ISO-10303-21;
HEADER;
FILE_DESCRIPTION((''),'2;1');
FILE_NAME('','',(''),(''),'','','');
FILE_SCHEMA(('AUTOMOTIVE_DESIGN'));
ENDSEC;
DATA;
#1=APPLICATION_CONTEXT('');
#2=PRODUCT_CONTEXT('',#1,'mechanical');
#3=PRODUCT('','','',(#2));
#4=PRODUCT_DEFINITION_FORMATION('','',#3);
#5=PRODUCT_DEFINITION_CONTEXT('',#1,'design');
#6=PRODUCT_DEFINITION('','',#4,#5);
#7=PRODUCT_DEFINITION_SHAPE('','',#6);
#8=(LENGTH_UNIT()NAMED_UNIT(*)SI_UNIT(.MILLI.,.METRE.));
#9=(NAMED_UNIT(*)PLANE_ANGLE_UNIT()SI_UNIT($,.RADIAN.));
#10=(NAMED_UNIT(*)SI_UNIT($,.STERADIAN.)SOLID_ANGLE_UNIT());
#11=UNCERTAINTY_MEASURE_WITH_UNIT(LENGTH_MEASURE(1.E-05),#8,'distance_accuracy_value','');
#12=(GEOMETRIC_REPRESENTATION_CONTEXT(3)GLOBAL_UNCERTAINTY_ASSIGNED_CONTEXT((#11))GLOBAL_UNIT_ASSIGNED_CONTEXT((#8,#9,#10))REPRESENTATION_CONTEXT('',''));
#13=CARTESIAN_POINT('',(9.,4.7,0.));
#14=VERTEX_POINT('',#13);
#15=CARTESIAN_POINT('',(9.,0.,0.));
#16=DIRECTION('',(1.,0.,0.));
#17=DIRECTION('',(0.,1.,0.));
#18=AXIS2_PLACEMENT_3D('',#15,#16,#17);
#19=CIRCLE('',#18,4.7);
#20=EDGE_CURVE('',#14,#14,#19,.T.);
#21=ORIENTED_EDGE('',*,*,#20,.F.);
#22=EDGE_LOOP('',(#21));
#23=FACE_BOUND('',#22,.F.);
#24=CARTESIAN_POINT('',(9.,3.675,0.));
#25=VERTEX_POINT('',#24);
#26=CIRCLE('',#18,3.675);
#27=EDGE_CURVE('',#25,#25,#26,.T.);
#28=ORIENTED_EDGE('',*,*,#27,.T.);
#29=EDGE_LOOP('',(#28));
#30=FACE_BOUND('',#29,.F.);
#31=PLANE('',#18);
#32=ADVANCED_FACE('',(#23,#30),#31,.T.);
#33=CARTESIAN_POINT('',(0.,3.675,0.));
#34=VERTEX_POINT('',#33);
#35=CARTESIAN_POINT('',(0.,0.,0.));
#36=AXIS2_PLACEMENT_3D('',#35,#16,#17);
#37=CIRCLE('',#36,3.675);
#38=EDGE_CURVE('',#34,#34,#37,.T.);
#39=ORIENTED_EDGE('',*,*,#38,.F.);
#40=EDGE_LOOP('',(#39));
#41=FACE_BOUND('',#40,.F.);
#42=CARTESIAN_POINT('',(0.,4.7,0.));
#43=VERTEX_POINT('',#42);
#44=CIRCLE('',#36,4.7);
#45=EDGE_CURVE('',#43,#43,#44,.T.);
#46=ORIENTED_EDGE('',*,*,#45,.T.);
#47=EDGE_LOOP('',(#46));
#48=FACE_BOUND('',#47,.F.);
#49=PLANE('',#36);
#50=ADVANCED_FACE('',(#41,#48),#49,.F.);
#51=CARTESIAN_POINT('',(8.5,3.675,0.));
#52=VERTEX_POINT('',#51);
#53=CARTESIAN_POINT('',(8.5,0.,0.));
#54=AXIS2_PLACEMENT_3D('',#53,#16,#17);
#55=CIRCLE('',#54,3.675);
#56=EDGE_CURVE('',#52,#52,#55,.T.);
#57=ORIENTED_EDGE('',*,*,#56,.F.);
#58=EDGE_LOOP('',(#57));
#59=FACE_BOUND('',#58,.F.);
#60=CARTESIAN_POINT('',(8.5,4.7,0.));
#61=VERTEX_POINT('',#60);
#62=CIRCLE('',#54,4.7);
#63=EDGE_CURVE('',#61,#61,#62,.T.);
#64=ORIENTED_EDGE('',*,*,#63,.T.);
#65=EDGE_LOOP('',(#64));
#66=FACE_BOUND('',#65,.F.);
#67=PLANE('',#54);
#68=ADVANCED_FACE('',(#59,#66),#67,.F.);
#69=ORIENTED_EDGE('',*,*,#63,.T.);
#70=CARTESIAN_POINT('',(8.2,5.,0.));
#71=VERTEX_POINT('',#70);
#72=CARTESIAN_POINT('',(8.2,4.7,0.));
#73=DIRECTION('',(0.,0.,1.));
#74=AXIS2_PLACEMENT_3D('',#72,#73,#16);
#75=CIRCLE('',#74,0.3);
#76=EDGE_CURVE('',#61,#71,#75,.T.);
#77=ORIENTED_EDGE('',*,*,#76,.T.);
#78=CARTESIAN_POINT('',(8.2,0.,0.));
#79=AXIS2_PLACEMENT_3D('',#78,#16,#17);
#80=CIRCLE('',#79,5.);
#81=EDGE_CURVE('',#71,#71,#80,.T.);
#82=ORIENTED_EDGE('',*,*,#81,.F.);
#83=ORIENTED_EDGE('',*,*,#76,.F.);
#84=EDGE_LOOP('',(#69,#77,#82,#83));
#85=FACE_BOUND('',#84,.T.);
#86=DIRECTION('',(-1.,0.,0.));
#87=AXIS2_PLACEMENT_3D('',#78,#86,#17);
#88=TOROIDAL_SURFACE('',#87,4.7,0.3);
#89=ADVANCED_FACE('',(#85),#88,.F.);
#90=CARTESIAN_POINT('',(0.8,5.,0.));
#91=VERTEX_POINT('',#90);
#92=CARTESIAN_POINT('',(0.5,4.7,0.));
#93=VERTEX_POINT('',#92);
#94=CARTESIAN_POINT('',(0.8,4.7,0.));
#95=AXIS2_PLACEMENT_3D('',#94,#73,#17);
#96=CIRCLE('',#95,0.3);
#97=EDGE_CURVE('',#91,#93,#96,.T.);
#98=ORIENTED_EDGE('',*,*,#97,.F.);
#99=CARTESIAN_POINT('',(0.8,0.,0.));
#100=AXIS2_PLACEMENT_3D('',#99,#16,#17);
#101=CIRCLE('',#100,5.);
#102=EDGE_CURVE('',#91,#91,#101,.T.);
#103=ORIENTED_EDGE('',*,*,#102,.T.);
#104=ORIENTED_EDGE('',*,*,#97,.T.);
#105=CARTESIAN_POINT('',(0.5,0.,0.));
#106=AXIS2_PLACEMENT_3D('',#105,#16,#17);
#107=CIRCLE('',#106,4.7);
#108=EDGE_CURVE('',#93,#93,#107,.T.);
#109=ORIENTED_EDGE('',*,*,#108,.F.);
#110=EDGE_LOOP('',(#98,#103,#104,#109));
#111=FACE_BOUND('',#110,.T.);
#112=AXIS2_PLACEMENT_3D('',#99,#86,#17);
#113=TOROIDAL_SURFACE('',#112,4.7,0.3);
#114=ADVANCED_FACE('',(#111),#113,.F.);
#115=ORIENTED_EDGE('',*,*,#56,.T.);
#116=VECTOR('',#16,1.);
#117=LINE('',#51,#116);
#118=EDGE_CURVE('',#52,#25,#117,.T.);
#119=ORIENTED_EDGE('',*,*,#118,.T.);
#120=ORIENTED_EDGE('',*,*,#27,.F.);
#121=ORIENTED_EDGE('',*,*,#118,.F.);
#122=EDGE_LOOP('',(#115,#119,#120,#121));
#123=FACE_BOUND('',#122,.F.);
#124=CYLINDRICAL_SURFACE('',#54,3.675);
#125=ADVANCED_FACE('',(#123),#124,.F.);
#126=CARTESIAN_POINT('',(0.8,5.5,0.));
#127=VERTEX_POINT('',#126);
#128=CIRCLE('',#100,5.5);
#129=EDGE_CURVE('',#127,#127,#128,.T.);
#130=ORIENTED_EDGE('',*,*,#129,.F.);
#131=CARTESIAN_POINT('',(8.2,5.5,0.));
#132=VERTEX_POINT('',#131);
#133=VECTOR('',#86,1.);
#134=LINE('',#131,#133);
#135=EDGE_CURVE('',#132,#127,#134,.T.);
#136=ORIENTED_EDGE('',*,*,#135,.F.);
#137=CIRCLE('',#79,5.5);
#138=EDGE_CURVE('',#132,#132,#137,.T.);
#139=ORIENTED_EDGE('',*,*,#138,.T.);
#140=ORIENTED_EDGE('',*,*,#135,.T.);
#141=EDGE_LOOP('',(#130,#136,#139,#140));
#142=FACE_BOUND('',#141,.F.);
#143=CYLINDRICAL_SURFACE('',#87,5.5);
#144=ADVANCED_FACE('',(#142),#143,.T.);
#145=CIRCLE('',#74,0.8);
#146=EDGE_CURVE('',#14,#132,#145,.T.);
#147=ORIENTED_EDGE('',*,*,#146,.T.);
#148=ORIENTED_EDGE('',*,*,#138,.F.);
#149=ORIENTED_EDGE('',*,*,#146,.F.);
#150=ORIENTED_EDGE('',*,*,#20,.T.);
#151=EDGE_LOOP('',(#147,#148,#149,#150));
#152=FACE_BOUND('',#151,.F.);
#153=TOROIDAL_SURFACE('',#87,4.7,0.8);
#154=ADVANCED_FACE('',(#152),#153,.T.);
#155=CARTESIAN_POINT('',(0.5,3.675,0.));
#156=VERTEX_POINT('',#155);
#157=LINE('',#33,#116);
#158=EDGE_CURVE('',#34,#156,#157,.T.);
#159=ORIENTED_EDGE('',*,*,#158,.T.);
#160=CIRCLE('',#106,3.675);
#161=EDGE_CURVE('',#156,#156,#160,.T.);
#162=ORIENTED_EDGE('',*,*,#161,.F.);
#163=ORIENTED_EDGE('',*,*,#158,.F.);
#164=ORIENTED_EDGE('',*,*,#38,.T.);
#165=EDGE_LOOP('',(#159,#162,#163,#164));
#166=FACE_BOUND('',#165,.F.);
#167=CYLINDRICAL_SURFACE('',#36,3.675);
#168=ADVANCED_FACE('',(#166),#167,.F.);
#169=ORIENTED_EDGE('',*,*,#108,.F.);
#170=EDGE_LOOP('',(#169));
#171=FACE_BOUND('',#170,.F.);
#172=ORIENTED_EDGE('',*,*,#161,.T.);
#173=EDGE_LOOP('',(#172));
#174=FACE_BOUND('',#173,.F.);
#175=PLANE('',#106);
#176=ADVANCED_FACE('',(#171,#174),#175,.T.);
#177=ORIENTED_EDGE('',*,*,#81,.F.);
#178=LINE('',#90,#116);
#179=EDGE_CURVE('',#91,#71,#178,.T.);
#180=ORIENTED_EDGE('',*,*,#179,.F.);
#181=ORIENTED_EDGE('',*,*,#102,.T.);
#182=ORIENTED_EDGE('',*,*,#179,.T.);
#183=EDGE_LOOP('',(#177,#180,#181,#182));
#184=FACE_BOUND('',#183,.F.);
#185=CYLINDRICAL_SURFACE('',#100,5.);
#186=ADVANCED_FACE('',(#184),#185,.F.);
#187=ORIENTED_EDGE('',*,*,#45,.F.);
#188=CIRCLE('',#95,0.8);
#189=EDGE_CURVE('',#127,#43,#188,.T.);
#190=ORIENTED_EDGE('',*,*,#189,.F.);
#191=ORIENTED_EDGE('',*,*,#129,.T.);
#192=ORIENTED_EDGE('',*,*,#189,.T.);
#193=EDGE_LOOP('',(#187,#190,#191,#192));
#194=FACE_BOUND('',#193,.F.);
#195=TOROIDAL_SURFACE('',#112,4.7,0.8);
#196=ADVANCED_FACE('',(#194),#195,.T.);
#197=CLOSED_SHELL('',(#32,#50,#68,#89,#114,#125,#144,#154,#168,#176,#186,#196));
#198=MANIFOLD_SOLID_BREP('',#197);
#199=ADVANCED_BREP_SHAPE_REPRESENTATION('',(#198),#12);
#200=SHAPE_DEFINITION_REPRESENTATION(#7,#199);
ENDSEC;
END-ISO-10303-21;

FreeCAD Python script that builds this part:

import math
import FreeCAD as App
import Part
import Sketcher
from FreeCAD import Vector
Q = App.Units.Quantity

doc = App.newDocument("Part")
params = doc.addObject("Spreadsheet::Sheet", "Params")
for row, (alias, value) in enumerate([
    ("sketch1_radius", "0.3 mm"),
    ("sketch1_radius2", "0.8 mm"),
    ("sketch1_width", "7.4 mm"),
    ("revolution_angle", "360 deg"),
], start=1):
    params.set(f"A{row}", alias)
    params.set(f"B{row}", "=" + value)
    params.setAlias(f"B{row}", alias)

body = doc.addObject("PartDesign::Body", "Body")

# Sketch on XY plane
sketch1 = body.newObject("Sketcher::SketchObject", "Sketch")
sketch1.AttachmentSupport = (doc.getObject("XY_Plane"), [""])
sketch1.MapMode = "FlatFace"
sketch1.addGeometry([
    Part.LineSegment(Vector(0, 4.7, 0), Vector(0, 3.67, 0)),  # 0
    Part.LineSegment(Vector(0, 3.67, 0), Vector(0.5, 3.67, 0)),  # 1
    Part.LineSegment(Vector(0.5, 3.67, 0), Vector(0.5, 4.7, 0)),  # 2
    Part.ArcOfCircle(Part.Circle(Vector(0.8, 4.7, 0), Vector(0, 0, 1), 0.3), math.radians(90), math.radians(180)),  # 3
    Part.LineSegment(Vector(0.8, 5, 0), Vector(8.2, 5, 0)),  # 4
    Part.ArcOfCircle(Part.Circle(Vector(8.2, 4.7, 0), Vector(0, 0, 1), 0.3), math.radians(0), math.radians(90)),  # 5
    Part.LineSegment(Vector(8.5, 4.7, 0), Vector(8.5, 3.67, 0)),  # 6
    Part.LineSegment(Vector(8.5, 3.67, 0), Vector(9, 3.67, 0)),  # 7
    Part.LineSegment(Vector(9, 3.67, 0), Vector(9, 4.7, 0)),  # 8
    Part.ArcOfCircle(Part.Circle(Vector(8.2, 4.7, 0), Vector(0, 0, 1), 0.8), math.radians(0), math.radians(90)),  # 9
    Part.LineSegment(Vector(8.2, 5.5, 0), Vector(0.8, 5.5, 0)),  # 10
    Part.ArcOfCircle(Part.Circle(Vector(0.8, 4.7, 0), Vector(0, 0, 1), 0.8), math.radians(90), math.radians(180)),  # 11
], False)
sketch1.addConstraint([
    Sketcher.Constraint("Coincident", 0, 2, 1, 1),
    Sketcher.Constraint("Coincident", 1, 2, 2, 1),
    Sketcher.Constraint("Tangent", 2, 2, 3, 2),
    Sketcher.Constraint("Tangent", 3, 1, 4, 1),
    Sketcher.Constraint("Tangent", 4, 2, 5, 2),
    Sketcher.Constraint("Tangent", 5, 1, 6, 1),
    Sketcher.Constraint("Coincident", 6, 2, 7, 1),
    Sketcher.Constraint("Coincident", 7, 2, 8, 1),
    Sketcher.Constraint("Tangent", 8, 2, 9, 1),
    Sketcher.Constraint("Tangent", 9, 2, 10, 1),
    Sketcher.Constraint("Tangent", 10, 2, 11, 1),
    Sketcher.Constraint("Tangent", 11, 2, 0, 1),
    Sketcher.Constraint("Vertical", 0),
    Sketcher.Constraint("Horizontal", 1),
    Sketcher.Constraint("Vertical", 2),
    Sketcher.Constraint("Horizontal", 4),
    Sketcher.Constraint("Vertical", 6),
    Sketcher.Constraint("Horizontal", 7),
    Sketcher.Constraint("Vertical", 8),
    Sketcher.Constraint("Horizontal", 10),
    Sketcher.Constraint("Coincident", 9, 3, 5, 3),
    Sketcher.Constraint("Coincident", 11, 3, 3, 3),
    Sketcher.Constraint("Equal", 3, 5),
    Sketcher.Constraint("PointOnObject", 0, 2, -2),
    Sketcher.Constraint("Horizontal", 1, 2, 6, 2),
    Sketcher.Constraint("Radius", 3, Q("0.3 mm")),
    Sketcher.Constraint("Radius", 9, Q("0.8 mm")),
    Sketcher.Constraint("DistanceX", 4, 1, 4, 2, Q("7.4 mm")),
    Sketcher.Constraint("DistanceY", -1, 1, 3, 1, Q("5 mm")),
    Sketcher.Constraint("DistanceY", 0, 2, 0, 1, Q("1.025 mm")),
])
sketch1.setExpression("Constraints[25]", "Params.sketch1_radius")
sketch1.setExpression("Constraints[26]", "Params.sketch1_radius2")
sketch1.setExpression("Constraints[27]", "Params.sketch1_width")
revolution = body.newObject("PartDesign::Revolution", "Revolution")
revolution.Profile = sketch1
revolution.ReferenceAxis = (sketch1, ["H_Axis"])
revolution.setExpression("Angle", "Params.revolution_angle")

doc.recompute()
